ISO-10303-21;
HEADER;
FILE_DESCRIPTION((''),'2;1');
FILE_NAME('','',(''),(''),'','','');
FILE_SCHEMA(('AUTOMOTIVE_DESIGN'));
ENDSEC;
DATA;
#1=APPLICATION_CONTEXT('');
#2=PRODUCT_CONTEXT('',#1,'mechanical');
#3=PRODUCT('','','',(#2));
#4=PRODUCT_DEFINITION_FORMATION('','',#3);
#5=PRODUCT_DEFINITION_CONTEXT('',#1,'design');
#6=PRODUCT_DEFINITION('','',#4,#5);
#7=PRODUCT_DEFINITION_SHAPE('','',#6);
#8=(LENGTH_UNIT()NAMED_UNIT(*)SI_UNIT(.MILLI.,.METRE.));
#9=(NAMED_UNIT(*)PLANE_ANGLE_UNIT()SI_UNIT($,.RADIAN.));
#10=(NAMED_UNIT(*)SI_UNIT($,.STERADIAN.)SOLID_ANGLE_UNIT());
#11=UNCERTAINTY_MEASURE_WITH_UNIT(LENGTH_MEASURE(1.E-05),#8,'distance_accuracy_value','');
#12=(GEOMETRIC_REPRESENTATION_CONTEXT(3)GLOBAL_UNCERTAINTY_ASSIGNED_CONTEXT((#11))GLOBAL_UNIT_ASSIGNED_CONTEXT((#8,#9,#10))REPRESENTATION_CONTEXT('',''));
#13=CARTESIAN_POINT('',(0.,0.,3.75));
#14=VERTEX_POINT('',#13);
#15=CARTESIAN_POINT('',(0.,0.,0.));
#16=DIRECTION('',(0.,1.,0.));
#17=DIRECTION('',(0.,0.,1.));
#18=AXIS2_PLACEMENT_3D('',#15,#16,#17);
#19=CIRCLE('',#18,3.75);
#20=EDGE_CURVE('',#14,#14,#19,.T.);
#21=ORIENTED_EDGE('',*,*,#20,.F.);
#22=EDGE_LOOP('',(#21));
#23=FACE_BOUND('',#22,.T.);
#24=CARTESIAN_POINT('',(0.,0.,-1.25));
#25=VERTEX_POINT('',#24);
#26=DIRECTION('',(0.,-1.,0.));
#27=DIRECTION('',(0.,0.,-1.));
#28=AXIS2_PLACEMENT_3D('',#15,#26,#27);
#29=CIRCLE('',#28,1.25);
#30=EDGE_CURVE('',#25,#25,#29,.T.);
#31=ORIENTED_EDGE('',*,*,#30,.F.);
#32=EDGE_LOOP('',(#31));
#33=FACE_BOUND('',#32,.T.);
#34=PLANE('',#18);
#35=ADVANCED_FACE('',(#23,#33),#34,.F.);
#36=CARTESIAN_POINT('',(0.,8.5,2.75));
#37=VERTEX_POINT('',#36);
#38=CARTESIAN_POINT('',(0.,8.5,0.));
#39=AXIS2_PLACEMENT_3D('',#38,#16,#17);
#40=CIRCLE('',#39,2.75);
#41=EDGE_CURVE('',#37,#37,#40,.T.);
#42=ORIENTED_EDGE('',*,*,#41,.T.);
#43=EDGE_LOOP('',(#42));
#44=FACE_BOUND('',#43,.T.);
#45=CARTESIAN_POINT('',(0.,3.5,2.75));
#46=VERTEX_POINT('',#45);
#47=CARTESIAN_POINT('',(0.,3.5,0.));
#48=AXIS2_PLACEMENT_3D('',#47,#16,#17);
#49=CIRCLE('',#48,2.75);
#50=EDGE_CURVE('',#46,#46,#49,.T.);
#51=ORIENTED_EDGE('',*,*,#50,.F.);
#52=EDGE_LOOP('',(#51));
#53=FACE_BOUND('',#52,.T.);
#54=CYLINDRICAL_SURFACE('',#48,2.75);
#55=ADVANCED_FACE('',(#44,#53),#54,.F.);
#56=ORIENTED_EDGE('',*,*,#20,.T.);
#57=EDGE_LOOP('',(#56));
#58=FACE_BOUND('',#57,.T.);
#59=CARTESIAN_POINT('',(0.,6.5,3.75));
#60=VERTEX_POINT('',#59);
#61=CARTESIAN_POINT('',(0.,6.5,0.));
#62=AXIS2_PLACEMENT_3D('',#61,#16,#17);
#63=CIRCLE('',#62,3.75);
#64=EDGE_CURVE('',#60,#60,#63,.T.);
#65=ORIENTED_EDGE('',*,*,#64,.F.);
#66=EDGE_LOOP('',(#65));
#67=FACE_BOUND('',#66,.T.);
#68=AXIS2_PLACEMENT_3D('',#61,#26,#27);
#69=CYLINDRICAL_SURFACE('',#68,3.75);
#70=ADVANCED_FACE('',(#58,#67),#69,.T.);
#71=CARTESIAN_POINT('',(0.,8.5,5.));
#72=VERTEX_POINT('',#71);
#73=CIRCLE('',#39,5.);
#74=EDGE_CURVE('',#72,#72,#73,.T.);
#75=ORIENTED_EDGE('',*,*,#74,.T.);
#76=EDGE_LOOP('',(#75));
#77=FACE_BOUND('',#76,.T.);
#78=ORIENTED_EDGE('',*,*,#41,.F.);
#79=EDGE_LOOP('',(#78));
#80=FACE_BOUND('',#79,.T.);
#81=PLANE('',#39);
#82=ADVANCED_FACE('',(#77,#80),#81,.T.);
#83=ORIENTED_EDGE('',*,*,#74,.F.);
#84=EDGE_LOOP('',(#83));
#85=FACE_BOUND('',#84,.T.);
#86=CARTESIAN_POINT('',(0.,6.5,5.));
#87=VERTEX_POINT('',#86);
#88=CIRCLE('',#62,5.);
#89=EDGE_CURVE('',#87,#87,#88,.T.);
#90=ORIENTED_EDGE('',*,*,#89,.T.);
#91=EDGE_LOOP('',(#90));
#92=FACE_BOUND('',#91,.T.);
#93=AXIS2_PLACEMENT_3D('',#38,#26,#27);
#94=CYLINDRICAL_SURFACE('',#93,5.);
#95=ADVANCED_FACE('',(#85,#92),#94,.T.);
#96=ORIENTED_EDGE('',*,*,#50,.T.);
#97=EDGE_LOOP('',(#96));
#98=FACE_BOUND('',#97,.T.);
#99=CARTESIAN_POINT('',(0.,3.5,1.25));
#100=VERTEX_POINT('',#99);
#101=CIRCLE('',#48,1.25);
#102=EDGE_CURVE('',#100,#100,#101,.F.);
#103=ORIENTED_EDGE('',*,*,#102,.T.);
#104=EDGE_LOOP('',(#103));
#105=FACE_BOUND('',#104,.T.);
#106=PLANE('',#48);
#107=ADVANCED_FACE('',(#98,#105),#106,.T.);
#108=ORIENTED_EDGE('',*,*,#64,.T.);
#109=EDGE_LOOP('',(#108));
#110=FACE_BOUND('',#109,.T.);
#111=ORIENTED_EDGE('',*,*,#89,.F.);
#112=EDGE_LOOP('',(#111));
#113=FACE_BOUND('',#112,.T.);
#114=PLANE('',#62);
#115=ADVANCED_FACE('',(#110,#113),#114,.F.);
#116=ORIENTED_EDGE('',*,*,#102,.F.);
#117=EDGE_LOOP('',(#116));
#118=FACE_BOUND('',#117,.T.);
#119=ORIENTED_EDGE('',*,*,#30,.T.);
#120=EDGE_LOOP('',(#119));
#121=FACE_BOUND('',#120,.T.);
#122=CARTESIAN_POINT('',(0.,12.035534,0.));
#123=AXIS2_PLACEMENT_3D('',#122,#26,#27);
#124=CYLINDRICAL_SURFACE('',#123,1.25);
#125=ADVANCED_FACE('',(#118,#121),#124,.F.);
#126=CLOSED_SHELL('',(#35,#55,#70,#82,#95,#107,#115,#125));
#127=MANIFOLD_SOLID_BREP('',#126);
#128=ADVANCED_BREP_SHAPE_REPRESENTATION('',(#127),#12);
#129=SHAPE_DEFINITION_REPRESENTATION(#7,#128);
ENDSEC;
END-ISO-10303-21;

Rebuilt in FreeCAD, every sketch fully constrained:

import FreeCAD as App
import Part
import Sketcher

doc = App.newDocument("Part")
body = doc.addObject("PartDesign::Body", "Body")

# Sketch on XZ plane
sketch1 = body.newObject("Sketcher::SketchObject", "Sketch")
sketch1.AttachmentSupport = (doc.getObject("XZ_Plane"), [""])
sketch1.MapMode = "FlatFace"
sketch1.addGeometry(Part.Circle(App.Vector(0, 0, 0), App.Vector(0, 0, 1), 3.8), False)
sketch1.addConstraint([
    Sketcher.Constraint("Coincident", 0, 3, -1, 1),
    Sketcher.Constraint("Diameter", 0, 7.5),
])
pad1 = body.newObject("PartDesign::Pad", "Pad")
pad1.Profile = sketch1
pad1.Length = 6.5
pad1.Reversed = True

# Sketch on XZ plane
sketch2 = body.newObject("Sketcher::SketchObject", "Sketch001")
sketch2.AttachmentSupport = (doc.getObject("XZ_Plane"), [""])
sketch2.MapMode = "FlatFace"
sketch2.AttachmentOffset = App.Placement(App.Vector(0, 0, -6.5), App.Rotation())
sketch2.addGeometry(Part.Circle(App.Vector(0, 0, 0), App.Vector(0, 0, 1), 5), False)
sketch2.addConstraint([
    Sketcher.Constraint("Coincident", 0, 3, -1, 1),
    Sketcher.Constraint("Diameter", 0, 10.0),
])
pad2 = body.newObject("PartDesign::Pad", "Pad001")
pad2.Profile = sketch2
pad2.Length = 2
pad2.Reversed = True

# Sketch on XZ plane
sketch3 = body.newObject("Sketcher::SketchObject", "Sketch002")
sketch3.AttachmentSupport = (doc.getObject("XZ_Plane"), [""])
sketch3.MapMode = "FlatFace"
sketch3.addGeometry(Part.Circle(App.Vector(0, 0, 0), App.Vector(0, 0, 1), 1.2), False)
sketch3.addConstraint([
    Sketcher.Constraint("Coincident", 0, 3, -1, 1),
    Sketcher.Constraint("Diameter", 0, 2.5),
])
pocket1 = body.newObject("PartDesign::Pocket", "Pocket")
pocket1.Profile = sketch3
pocket1.Length = 6.5

# Sketch on XZ plane
sketch4 = body.newObject("Sketcher::SketchObject", "Sketch003")
sketch4.AttachmentSupport = (doc.getObject("XZ_Plane"), [""])
sketch4.MapMode = "FlatFace"
sketch4.AttachmentOffset = App.Placement(App.Vector(0, 0, -8.5), App.Rotation())
sketch4.addGeometry(Part.Circle(App.Vector(0, 0, 0), App.Vector(0, 0, 1), 2.8), False)
sketch4.addConstraint([
    Sketcher.Constraint("Coincident", 0, 3, -1, 1),
    Sketcher.Constraint("Diameter", 0, 5.5),
])
pocket2 = body.newObject("PartDesign::Pocket", "Pocket001")
pocket2.Profile = sketch4
pocket2.Length = 5
pocket2.Reversed = True

doc.recompute()
